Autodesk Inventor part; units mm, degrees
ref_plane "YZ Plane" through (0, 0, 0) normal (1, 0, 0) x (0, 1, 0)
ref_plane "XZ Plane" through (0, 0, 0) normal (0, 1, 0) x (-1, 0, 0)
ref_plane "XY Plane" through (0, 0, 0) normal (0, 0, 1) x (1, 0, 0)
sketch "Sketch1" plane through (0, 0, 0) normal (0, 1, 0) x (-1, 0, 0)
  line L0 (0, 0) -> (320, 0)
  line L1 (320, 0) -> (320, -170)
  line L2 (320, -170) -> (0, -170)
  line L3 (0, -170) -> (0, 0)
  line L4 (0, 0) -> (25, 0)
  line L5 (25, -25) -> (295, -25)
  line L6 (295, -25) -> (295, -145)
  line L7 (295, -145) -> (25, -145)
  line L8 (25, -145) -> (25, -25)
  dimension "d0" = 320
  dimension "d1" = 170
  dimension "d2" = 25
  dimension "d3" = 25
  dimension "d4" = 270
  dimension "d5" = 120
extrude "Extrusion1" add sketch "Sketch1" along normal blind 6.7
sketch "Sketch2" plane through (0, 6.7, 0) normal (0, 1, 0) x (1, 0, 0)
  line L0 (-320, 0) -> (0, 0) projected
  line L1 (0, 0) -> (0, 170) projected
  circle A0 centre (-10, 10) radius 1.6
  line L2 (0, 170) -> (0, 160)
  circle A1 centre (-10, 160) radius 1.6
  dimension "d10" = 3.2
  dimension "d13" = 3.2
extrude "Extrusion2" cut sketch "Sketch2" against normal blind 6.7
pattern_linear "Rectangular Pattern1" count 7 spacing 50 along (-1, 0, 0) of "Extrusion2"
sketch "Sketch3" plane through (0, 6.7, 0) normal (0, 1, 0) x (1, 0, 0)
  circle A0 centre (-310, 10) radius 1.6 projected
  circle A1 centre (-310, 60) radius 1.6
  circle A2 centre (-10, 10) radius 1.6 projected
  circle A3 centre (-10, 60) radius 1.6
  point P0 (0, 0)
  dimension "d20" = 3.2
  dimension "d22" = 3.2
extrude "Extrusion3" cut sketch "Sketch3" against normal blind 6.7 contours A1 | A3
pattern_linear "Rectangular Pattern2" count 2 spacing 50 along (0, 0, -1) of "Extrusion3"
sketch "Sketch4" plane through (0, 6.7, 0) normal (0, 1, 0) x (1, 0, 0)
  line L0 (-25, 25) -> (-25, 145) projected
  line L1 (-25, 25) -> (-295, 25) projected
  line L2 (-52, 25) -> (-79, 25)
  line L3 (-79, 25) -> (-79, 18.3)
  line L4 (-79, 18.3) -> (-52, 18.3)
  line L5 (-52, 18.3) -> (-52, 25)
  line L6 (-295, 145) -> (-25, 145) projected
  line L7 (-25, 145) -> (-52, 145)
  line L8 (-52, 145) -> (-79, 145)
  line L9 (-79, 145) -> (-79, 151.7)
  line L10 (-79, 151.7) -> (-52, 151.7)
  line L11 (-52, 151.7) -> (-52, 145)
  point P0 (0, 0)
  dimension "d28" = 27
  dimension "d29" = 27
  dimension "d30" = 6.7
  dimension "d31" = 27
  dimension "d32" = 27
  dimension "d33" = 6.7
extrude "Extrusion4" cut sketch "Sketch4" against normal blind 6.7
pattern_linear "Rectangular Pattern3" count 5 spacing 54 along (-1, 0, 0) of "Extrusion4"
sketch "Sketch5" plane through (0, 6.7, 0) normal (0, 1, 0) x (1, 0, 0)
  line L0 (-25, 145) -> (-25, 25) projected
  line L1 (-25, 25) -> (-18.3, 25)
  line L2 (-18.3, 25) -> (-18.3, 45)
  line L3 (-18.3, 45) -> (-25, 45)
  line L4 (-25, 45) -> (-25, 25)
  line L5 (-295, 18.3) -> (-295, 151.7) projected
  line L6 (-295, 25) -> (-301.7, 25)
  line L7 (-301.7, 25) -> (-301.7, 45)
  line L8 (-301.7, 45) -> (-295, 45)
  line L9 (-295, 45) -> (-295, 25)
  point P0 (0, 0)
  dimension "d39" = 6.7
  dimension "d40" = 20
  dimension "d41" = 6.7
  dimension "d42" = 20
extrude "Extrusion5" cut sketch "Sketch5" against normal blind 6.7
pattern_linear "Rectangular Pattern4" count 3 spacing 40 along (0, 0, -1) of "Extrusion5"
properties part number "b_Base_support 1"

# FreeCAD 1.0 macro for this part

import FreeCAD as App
import Part
import Sketcher

V = App.Vector


def add_polygon(sketch, points):
    """Adds a closed chain of lines whose ends are joined by coincident constraints."""
    first, n = sketch.GeometryCount, len(points)
    for a, b in zip(points, points[1:] + points[:1]):
        sketch.addGeometry(Part.LineSegment(App.Vector(*a, 0), App.Vector(*b, 0)), False)
    for i in range(n):
        sketch.addConstraint(Sketcher.Constraint("Coincident", first + i, 2, first + (i + 1) % n, 1))

doc = App.newDocument("Part")
body = doc.addObject("PartDesign::Body", "Body")

sketch1 = body.newObject("Sketcher::SketchObject", "Sketch")
sketch1.AttachmentSupport = (doc.getObject("XZ_Plane"), [""])
sketch1.MapMode = "FlatFace"
add_polygon(sketch1, [(-320, 0), (0, 0), (0, -170), (-320, -170)])
add_polygon(sketch1, [(-25, -145), (-25, -25), (-295, -25), (-295, -145)])
sketch1.addConstraint([
    Sketcher.Constraint("Horizontal", 0),
    Sketcher.Constraint("Vertical", 1),
    Sketcher.Constraint("Horizontal", 2),
    Sketcher.Constraint("Vertical", 3),
    Sketcher.Constraint("Vertical", 4),
    Sketcher.Constraint("Horizontal", 5),
    Sketcher.Constraint("Vertical", 6),
    Sketcher.Constraint("Horizontal", 7),
    Sketcher.Constraint("Coincident", 0, 2, -1, 1),
    Sketcher.Constraint("DistanceX", 0, 1, 0, 2, 320.0),
    Sketcher.Constraint("DistanceX", 5, 2, 5, 1, 270.0),
    Sketcher.Constraint("DistanceY", 1, 2, 1, 1, 170.0),
    Sketcher.Constraint("DistanceY", 4, 1, 4, 2, 120.0),
    Sketcher.Constraint("DistanceX", 4, 2, -1, 1, 25.0),
    Sketcher.Constraint("DistanceY", 4, 2, -1, 1, 25.0),
])
pad1 = body.newObject("PartDesign::Pad", "Pad")
pad1.Profile = sketch1
pad1.Length = 6.7
pad1.Reversed = True

sketch2 = body.newObject("Sketcher::SketchObject", "Sketch001")
sketch2.AttachmentSupport = (doc.getObject("XZ_Plane"), [""])
sketch2.MapMode = "FlatFace"
sketch2.AttachmentOffset = App.Placement(V(0, 0, -6.7), App.Rotation())
sketch2.addGeometry([
    Part.Circle(V(-10, -10, 0), V(0, 0, 1), 1.6),
    Part.Circle(V(-10, -160, 0), V(0, 0, 1), 1.6),
], False)
sketch2.addConstraint([
    Sketcher.Constraint("Equal", 0, 1),
    Sketcher.Constraint("Vertical", 0, 3, 1, 3),
    Sketcher.Constraint("Diameter", 0, 3.2),
    Sketcher.Constraint("DistanceX", 0, 3, -1, 1, 10.0),
    Sketcher.Constraint("DistanceY", 0, 3, -1, 1, 10.0),
    Sketcher.Constraint("DistanceY", 1, 3, -1, 1, 160.0),
])
pocket1 = body.newObject("PartDesign::Pocket", "Pocket")
pocket1.Profile = sketch2
pocket1.Length = 6.7
pocket1.Reversed = True
doc.recompute()

linearpattern = body.newObject("PartDesign::LinearPattern", "LinearPattern")
linearpattern.Originals = [pocket1]
linearpattern.Direction = (doc.getObject("X_Axis"), [""])
linearpattern.Mode = "offset"
linearpattern.Offset = 50
linearpattern.Occurrences = 7
linearpattern.Reversed = True
body.Tip = linearpattern

sketch3 = body.newObject("Sketcher::SketchObject", "Sketch002")
sketch3.AttachmentSupport = (doc.getObject("XZ_Plane"), [""])
sketch3.MapMode = "FlatFace"
sketch3.AttachmentOffset = App.Placement(V(0, 0, -6.7), App.Rotation())
sketch3.addGeometry([
    Part.Circle(V(-310, -60, 0), V(0, 0, 1), 1.6),
    Part.Circle(V(-10, -60, 0), V(0, 0, 1), 1.6),
], False)
sketch3.addConstraint([
    Sketcher.Constraint("Equal", 0, 1),
    Sketcher.Constraint("Horizontal", 0, 3, 1, 3),
    Sketcher.Constraint("Diameter", 0, 3.2),
    Sketcher.Constraint("DistanceX", 0, 3, -1, 1, 310.0),
    Sketcher.Constraint("DistanceY", 0, 3, -1, 1, 60.0),
    Sketcher.Constraint("DistanceX", 1, 3, -1, 1, 10.0),
])
pocket2 = body.newObject("PartDesign::Pocket", "Pocket001")
pocket2.Profile = sketch3
pocket2.Length = 6.7
pocket2.Reversed = True
doc.recompute()

linearpattern2 = body.newObject("PartDesign::LinearPattern", "LinearPattern001")
linearpattern2.Originals = [pocket2]
linearpattern2.Direction = (doc.getObject("Z_Axis"), [""])
linearpattern2.Mode = "offset"
linearpattern2.Offset = 50
linearpattern2.Occurrences = 2
linearpattern2.Reversed = True
body.Tip = linearpattern2

sketch4 = body.newObject("Sketcher::SketchObject", "Sketch003")
sketch4.AttachmentSupport = (doc.getObject("XZ_Plane"), [""])
sketch4.MapMode = "FlatFace"
sketch4.AttachmentOffset = App.Placement(V(0, 0, -6.7), App.Rotation())
add_polygon(sketch4, [(-79, -145), (-52, -145), (-52, -152), (-79, -152)])
add_polygon(sketch4, [(-52, -18), (-52, -25), (-79, -25), (-79, -18)])
sketch4.addConstraint([
    Sketcher.Constraint("Horizontal", 0),
    Sketcher.Constraint("Vertical", 1),
    Sketcher.Constraint("Horizontal", 2),
    Sketcher.Constraint("Vertical", 3),
    Sketcher.Constraint("Vertical", 4),
    Sketcher.Constraint("Horizontal", 5),
    Sketcher.Constraint("Vertical", 6),
    Sketcher.Constraint("Horizontal", 7),
    Sketcher.Constraint("Vertical", 1, 2, 4, 2),
    Sketcher.Constraint("Vertical", 3, 2, 5, 2),
    Sketcher.Constraint("Equal", 3, 4),
    Sketcher.Constraint("DistanceX", 0, 1, 0, 2, 27.0),
    Sketcher.Constraint("DistanceY", 1, 2, 1, 1, 6.7),
    Sketcher.Constraint("DistanceX", 0, 2, -1, 1, 52.0),
    Sketcher.Constraint("DistanceY", 0, 2, -1, 1, 145.0),
    Sketcher.Constraint("DistanceY", 4, 2, -1, 1, 25.0),
])
pocket3 = body.newObject("PartDesign::Pocket", "Pocket002")
pocket3.Profile = sketch4
pocket3.Length = 6.7
pocket3.Reversed = True
doc.recompute()

linearpattern3 = body.newObject("PartDesign::LinearPattern", "LinearPattern002")
linearpattern3.Originals = [pocket3]
linearpattern3.Direction = (doc.getObject("X_Axis"), [""])
linearpattern3.Mode = "offset"
linearpattern3.Offset = 54
linearpattern3.Occurrences = 5
linearpattern3.Reversed = True
body.Tip = linearpattern3

sketch5 = body.newObject("Sketcher::SketchObject", "Sketch004")
sketch5.AttachmentSupport = (doc.getObject("XZ_Plane"), [""])
sketch5.MapMode = "FlatFace"
sketch5.AttachmentOffset = App.Placement(V(0, 0, -6.7), App.Rotation())
add_polygon(sketch5, [(-18, -45), (-25, -45), (-25, -25), (-18, -25)])
add_polygon(sketch5, [(-302, -25), (-295, -25), (-295, -45), (-302, -45)])
sketch5.addConstraint([
    Sketcher.Constraint("Horizontal", 0),
    Sketcher.Constraint("Vertical", 1),
    Sketcher.Constraint("Horizontal", 2),
    Sketcher.Constraint("Vertical", 3),
    Sketcher.Constraint("Horizontal", 4),
    Sketcher.Constraint("Vertical", 5),
    Sketcher.Constraint("Horizontal", 6),
    Sketcher.Constraint("Vertical", 7),
    Sketcher.Constraint("Horizontal", 2, 2, 4, 2),
    Sketcher.Constraint("Horizontal", 3, 2, 5, 2),
    Sketcher.Constraint("Equal", 2, 4),
    Sketcher.Constraint("DistanceY", 1, 1, 1, 2, 20.0),
    Sketcher.Constraint("DistanceX", 0, 2, 0, 1, 6.7),
    Sketcher.Constraint("DistanceX", 0, 2, -1, 1, 25.0),
    Sketcher.Constraint("DistanceY", 0, 2, -1, 1, 45.0),
    Sketcher.Constraint("DistanceX", 4, 2, -1, 1, 295.0),
])
pocket4 = body.newObject("PartDesign::Pocket", "Pocket003")
pocket4.Profile = sketch5
pocket4.Length = 6.7
pocket4.Reversed = True
doc.recompute()

linearpattern4 = body.newObject("PartDesign::LinearPattern", "LinearPattern003")
linearpattern4.Originals = [pocket4]
linearpattern4.Direction = (doc.getObject("Z_Axis"), [""])
linearpattern4.Mode = "offset"
linearpattern4.Offset = 40
linearpattern4.Occurrences = 3
linearpattern4.Reversed = True
body.Tip = linearpattern4

doc.recompute()
